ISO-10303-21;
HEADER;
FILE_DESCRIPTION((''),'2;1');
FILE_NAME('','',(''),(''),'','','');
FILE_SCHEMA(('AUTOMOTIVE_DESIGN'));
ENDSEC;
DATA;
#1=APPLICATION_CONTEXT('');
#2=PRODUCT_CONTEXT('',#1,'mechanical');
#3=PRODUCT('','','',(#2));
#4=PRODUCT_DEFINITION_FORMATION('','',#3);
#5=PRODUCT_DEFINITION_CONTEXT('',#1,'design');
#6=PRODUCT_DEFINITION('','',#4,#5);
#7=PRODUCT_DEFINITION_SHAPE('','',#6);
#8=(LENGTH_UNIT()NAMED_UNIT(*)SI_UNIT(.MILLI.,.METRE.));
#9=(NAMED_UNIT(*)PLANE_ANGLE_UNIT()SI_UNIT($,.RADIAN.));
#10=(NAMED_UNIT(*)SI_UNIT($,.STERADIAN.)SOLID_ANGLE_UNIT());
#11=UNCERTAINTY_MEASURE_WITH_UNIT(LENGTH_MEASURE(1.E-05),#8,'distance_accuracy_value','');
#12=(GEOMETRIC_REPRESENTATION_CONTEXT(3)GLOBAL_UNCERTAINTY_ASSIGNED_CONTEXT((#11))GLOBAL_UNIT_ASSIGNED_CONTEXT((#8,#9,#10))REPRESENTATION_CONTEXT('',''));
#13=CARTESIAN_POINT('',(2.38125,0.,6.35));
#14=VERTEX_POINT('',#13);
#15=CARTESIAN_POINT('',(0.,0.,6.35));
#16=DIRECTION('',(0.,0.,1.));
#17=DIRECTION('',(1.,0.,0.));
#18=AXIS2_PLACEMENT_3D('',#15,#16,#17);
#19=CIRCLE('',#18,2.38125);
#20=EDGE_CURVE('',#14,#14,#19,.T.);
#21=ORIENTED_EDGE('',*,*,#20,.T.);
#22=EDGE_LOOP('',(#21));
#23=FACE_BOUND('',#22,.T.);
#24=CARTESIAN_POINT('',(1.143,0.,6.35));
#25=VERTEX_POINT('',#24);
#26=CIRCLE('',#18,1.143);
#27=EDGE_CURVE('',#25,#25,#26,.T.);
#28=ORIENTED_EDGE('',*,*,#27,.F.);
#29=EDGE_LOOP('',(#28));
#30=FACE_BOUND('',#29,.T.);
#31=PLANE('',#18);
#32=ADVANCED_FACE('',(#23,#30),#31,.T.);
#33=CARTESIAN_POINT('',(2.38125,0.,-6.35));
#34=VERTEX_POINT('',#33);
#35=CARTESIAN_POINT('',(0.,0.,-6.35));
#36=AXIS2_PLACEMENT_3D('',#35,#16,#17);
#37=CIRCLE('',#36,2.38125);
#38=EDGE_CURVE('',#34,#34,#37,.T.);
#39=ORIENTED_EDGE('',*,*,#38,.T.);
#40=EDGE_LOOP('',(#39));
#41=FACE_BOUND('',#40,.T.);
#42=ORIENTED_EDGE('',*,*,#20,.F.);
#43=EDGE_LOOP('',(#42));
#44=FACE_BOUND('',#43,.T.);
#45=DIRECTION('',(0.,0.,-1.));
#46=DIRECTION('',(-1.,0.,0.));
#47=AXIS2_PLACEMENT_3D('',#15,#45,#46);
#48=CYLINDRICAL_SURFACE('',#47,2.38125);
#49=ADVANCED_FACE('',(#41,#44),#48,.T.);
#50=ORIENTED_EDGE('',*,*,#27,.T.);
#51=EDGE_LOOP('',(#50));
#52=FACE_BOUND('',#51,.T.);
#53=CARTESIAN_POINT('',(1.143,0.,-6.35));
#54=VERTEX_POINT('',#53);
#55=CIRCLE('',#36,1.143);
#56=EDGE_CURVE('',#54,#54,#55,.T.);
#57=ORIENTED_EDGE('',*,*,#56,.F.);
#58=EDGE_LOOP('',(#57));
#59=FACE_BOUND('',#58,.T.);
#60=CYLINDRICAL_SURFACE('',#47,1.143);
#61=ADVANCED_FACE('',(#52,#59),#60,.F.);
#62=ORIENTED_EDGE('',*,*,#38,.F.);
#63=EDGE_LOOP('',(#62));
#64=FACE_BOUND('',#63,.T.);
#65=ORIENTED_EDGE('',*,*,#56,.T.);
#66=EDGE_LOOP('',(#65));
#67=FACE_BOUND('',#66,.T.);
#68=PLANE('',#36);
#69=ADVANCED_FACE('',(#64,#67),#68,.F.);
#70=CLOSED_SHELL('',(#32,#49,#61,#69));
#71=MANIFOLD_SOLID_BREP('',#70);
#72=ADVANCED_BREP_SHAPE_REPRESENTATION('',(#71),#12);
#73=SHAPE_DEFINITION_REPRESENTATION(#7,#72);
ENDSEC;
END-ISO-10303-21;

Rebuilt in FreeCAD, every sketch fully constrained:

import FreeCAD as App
import Part
import Sketcher
from FreeCAD import Vector
Q = App.Units.Quantity

doc = App.newDocument("Part")
body = doc.addObject("PartDesign::Body", "Body")

# Sketch on XY plane
sketch1 = body.newObject("Sketcher::SketchObject", "Sketch")
sketch1.AttachmentSupport = (doc.getObject("XY_Plane"), [""])
sketch1.MapMode = "FlatFace"
sketch1.addGeometry(Part.Circle(Vector(0, 0, 0), Vector(0, 0, 1), 2.4), False)
sketch1.addGeometry(Part.Circle(Vector(0, 0, 0), Vector(0, 0, 1), 1.1), False)
sketch1.addConstraint(Sketcher.Constraint("Coincident", 0, 3, -1, 1))
sketch1.addConstraint(Sketcher.Constraint("Coincident", 1, 3, -1, 1))
sketch1.addConstraint(Sketcher.Constraint("Diameter", 1, Q("0.09 in")))
sketch1.addConstraint(Sketcher.Constraint("Diameter", 0, Q("0.1875 in")))
pad1 = body.newObject("PartDesign::Pad", "Pad")
pad1.Profile = sketch1
pad1.Length = Q("0.5 in")
pad1.Midplane = True

doc.recompute()
